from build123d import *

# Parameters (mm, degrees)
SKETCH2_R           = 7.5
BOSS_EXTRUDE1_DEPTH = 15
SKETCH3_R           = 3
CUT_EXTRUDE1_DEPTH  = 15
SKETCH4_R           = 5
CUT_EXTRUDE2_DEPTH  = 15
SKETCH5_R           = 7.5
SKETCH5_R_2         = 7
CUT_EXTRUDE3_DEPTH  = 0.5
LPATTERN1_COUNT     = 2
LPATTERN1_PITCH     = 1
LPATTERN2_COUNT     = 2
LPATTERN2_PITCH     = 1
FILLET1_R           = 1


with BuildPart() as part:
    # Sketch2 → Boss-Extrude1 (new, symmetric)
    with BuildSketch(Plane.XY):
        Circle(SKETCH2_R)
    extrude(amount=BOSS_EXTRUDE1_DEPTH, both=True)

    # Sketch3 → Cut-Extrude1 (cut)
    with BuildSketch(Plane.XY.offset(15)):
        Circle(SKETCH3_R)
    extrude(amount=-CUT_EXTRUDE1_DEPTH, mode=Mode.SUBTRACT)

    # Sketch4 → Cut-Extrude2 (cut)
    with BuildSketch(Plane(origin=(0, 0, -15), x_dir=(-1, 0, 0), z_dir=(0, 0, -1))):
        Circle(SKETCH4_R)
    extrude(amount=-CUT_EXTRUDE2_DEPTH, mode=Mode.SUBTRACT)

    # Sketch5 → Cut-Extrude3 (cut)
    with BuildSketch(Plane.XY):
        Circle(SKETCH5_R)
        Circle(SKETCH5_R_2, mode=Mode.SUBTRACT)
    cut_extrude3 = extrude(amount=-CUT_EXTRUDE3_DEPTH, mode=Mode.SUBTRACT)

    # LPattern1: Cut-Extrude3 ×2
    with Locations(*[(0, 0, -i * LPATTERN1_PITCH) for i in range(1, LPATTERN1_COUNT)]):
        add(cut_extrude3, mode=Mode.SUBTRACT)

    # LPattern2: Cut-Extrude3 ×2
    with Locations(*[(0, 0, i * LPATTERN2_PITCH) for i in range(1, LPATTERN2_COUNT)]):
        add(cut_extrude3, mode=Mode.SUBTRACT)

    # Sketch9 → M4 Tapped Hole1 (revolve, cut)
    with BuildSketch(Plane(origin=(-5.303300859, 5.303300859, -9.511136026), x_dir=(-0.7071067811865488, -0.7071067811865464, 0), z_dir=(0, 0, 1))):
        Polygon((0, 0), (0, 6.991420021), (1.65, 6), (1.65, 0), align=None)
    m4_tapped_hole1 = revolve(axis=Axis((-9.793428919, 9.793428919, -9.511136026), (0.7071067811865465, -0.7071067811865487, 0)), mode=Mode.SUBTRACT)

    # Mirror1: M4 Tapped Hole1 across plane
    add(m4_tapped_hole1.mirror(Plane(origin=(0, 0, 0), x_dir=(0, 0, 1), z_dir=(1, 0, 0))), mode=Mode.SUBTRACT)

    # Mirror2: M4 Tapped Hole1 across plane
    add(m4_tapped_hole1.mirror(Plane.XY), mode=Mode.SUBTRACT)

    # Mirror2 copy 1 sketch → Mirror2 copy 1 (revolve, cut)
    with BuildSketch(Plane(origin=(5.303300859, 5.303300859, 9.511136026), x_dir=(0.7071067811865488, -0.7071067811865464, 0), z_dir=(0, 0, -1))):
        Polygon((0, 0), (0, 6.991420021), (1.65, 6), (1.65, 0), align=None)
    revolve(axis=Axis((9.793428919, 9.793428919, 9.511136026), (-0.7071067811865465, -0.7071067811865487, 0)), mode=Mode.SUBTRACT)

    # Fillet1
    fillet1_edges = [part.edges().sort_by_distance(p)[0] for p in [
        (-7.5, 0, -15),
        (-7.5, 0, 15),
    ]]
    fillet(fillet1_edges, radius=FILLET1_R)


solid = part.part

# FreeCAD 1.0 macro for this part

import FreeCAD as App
import Part
import Sketcher
from FreeCAD import Vector
Q = App.Units.Quantity


def edges_at(feature, points):
    """Names of the edges that pass closest to the given points."""
    edges = feature.Shape.Edges
    near = lambda p: min(range(len(edges)), key=lambda i: edges[i].distToShape(Part.Vertex(*p))[0])
    return sorted({f"Edge{near(p) + 1}" for p in points})


def add_polygon(sketch, points):
    """Adds a closed chain of lines whose ends are joined by coincident constraints."""
    first, n = sketch.GeometryCount, len(points)
    for a, b in zip(points, points[1:] + points[:1]):
        sketch.addGeometry(Part.LineSegment(App.Vector(*a, 0), App.Vector(*b, 0)), False)
    for i in range(n):
        sketch.addConstraint(Sketcher.Constraint("Coincident", first + i, 2, first + (i + 1) % n, 1))

doc = App.newDocument("Part")
body = doc.addObject("PartDesign::Body", "Body")

sketch1 = body.newObject("Sketcher::SketchObject", "Sketch")
sketch1.AttachmentSupport = (doc.getObject("XY_Plane"), [""])
sketch1.MapMode = "FlatFace"
sketch1.addGeometry(Part.Circle(Vector(0, 0, 0), Vector(0, 0, 1), 8), False)
sketch1.addConstraint(Sketcher.Constraint("Coincident", 0, 3, -1, 1))
sketch1.addConstraint(Sketcher.Constraint("Diameter", 0, 15.0))
pad1 = body.newObject("PartDesign::Pad", "Pad")
pad1.Profile = sketch1
pad1.Length = 30
pad1.Midplane = True

sketch2 = body.newObject("Sketcher::SketchObject", "Sketch001")
sketch2.AttachmentSupport = (doc.getObject("XY_Plane"), [""])
sketch2.MapMode = "FlatFace"
sketch2.AttachmentOffset = App.Placement(Vector(0, 0, 15), App.Rotation())
sketch2.addGeometry(Part.Circle(Vector(0, 0, 0), Vector(0, 0, 1), 3), False)
sketch2.addConstraint(Sketcher.Constraint("Coincident", 0, 3, -1, 1))
sketch2.addConstraint(Sketcher.Constraint("Diameter", 0, 6.0))
pocket1 = body.newObject("PartDesign::Pocket", "Pocket")
pocket1.Profile = sketch2
pocket1.Length = 15

sketch3 = body.newObject("Sketcher::SketchObject", "Sketch002")
sketch3.AttachmentSupport = (doc.getObject("XY_Plane"), [""])
sketch3.MapMode = "FlatFace"
sketch3.AttachmentOffset = App.Placement(Vector(0, 0, -15), App.Rotation())
sketch3.addGeometry(Part.Circle(Vector(0, 0, 0), Vector(0, 0, 1), 5), False)
sketch3.addConstraint(Sketcher.Constraint("Coincident", 0, 3, -1, 1))
sketch3.addConstraint(Sketcher.Constraint("Diameter", 0, 10.0))
pocket2 = body.newObject("PartDesign::Pocket", "Pocket001")
pocket2.Profile = sketch3
pocket2.Length = 15
pocket2.Reversed = True

sketch4 = body.newObject("Sketcher::SketchObject", "Sketch003")
sketch4.AttachmentSupport = (doc.getObject("XY_Plane"), [""])
sketch4.MapMode = "FlatFace"
sketch4.addGeometry(Part.Circle(Vector(0, 0, 0), Vector(0, 0, 1), 8), False)
sketch4.addGeometry(Part.Circle(Vector(0, 0, 0), Vector(0, 0, 1), 7), False)
sketch4.addConstraint(Sketcher.Constraint("Coincident", 0, 3, -1, 1))
sketch4.addConstraint(Sketcher.Constraint("Coincident", 1, 3, -1, 1))
sketch4.addConstraint(Sketcher.Constraint("Diameter", 0, 15.0))
sketch4.addConstraint(Sketcher.Constraint("Diameter", 1, 14.0))
pocket3 = body.newObject("PartDesign::Pocket", "Pocket002")
pocket3.Profile = sketch4
pocket3.Length = 0.5
doc.recompute()

linearpattern = body.newObject("PartDesign::LinearPattern", "LinearPattern")
linearpattern.Originals = [pocket3]
linearpattern.Direction = (doc.getObject("Z_Axis"), [""])
linearpattern.Mode = "offset"
linearpattern.Offset = 1
linearpattern.Occurrences = 2
linearpattern.Reversed = True
body.Tip = linearpattern
doc.recompute()

linearpattern2 = body.newObject("PartDesign::LinearPattern", "LinearPattern001")
linearpattern2.Originals = [pocket3]
linearpattern2.Direction = (doc.getObject("Z_Axis"), [""])
linearpattern2.Mode = "offset"
linearpattern2.Offset = 1
linearpattern2.Occurrences = 2
body.Tip = linearpattern2

sketch5 = body.newObject("Sketcher::SketchObject", "Sketch004")
sketch5.AttachmentSupport = (doc.getObject("XY_Plane"), [""])
sketch5.MapMode = "FlatFace"
sketch5.AttachmentOffset = App.Placement(Vector(0, 0, -9.511136), App.Rotation())
add_polygon(sketch5, [(-0.4, 0.4), (-5.3, 5.3), (-6.5, 4.1), (-2.2, -0.1)])
sketch5.addGeometry(Part.LineSegment(Vector(-5.3, 5.3, 0), Vector(-0.4, 0.4, 0)), True)
sketch5.addConstraint(Sketcher.Constraint("Coincident", 4, 1, 0, 2))
sketch5.addConstraint(Sketcher.Constraint("Coincident", 4, 2, 3, 2))
sketch5.addConstraint(Sketcher.Constraint("Perpendicular", 0, 1))
sketch5.addConstraint(Sketcher.Constraint("Perpendicular", 1, 2))
sketch5.addConstraint(Sketcher.Constraint("Angle", 0, Q("135 deg")))
sketch5.addConstraint(Sketcher.Constraint("Angle", 3, Q("14 deg")))
sketch5.addConstraint(Sketcher.Constraint("Distance", 2, 6.0))
sketch5.addConstraint(Sketcher.Constraint("Distance", 1, 1.65))
sketch5.addConstraint(Sketcher.Constraint("DistanceX", 0, 2, -1, 1, 5.303301))
sketch5.addConstraint(Sketcher.Constraint("DistanceY", -1, 1, 0, 2, 5.303301))
groove = body.newObject("PartDesign::Groove", "Groove")
groove.Profile = sketch5
groove.ReferenceAxis = (sketch5, ["Axis0"])
groove.Angle = 360
doc.recompute()

mirrored = body.newObject("PartDesign::Mirrored", "Mirrored")
mirrored.Originals = [groove]
mirrored.MirrorPlane = (doc.getObject("YZ_Plane"), [""])
body.Tip = mirrored
doc.recompute()

mirrored2 = body.newObject("PartDesign::Mirrored", "Mirrored001")
mirrored2.Originals = [groove]
mirrored2.MirrorPlane = (doc.getObject("XY_Plane"), [""])
body.Tip = mirrored2

sketch6 = body.newObject("Sketcher::SketchObject", "Sketch005")
sketch6.AttachmentSupport = (doc.getObject("XY_Plane"), [""])
sketch6.MapMode = "FlatFace"
sketch6.AttachmentOffset = App.Placement(Vector(0, 0, 9.511136), App.Rotation())
add_polygon(sketch6, [(0.4, 0.4), (5.3, 5.3), (6.5, 4.1), (2.2, -0.1)])
sketch6.addGeometry(Part.LineSegment(Vector(5.3, 5.3, 0), Vector(0.4, 0.4, 0)), True)
sketch6.addConstraint(Sketcher.Constraint("Coincident", 4, 1, 0, 2))
sketch6.addConstraint(Sketcher.Constraint("Coincident", 4, 2, 3, 2))
sketch6.addConstraint(Sketcher.Constraint("Perpendicular", 0, 1))
sketch6.addConstraint(Sketcher.Constraint("Perpendicular", 1, 2))
sketch6.addConstraint(Sketcher.Constraint("Angle", 0, Q("45 deg")))
sketch6.addConstraint(Sketcher.Constraint("Angle", 3, Q("166 deg")))
sketch6.addConstraint(Sketcher.Constraint("Distance", 2, 6.0))
sketch6.addConstraint(Sketcher.Constraint("Distance", 1, 1.65))
sketch6.addConstraint(Sketcher.Constraint("DistanceX", -1, 1, 0, 2, 5.303301))
sketch6.addConstraint(Sketcher.Constraint("DistanceY", -1, 1, 0, 2, 5.303301))
groove2 = body.newObject("PartDesign::Groove", "Groove001")
groove2.Profile = sketch6
groove2.ReferenceAxis = (sketch6, ["Axis0"])
groove2.Angle = 360
doc.recompute()

fillet = body.newObject("PartDesign::Fillet", "Fillet")
fillet.Base = (groove2, edges_at(groove2, [(-7.5, 0, -15), (-7.5, 0, 15)]))
fillet.Radius = 1

doc.recompute()
